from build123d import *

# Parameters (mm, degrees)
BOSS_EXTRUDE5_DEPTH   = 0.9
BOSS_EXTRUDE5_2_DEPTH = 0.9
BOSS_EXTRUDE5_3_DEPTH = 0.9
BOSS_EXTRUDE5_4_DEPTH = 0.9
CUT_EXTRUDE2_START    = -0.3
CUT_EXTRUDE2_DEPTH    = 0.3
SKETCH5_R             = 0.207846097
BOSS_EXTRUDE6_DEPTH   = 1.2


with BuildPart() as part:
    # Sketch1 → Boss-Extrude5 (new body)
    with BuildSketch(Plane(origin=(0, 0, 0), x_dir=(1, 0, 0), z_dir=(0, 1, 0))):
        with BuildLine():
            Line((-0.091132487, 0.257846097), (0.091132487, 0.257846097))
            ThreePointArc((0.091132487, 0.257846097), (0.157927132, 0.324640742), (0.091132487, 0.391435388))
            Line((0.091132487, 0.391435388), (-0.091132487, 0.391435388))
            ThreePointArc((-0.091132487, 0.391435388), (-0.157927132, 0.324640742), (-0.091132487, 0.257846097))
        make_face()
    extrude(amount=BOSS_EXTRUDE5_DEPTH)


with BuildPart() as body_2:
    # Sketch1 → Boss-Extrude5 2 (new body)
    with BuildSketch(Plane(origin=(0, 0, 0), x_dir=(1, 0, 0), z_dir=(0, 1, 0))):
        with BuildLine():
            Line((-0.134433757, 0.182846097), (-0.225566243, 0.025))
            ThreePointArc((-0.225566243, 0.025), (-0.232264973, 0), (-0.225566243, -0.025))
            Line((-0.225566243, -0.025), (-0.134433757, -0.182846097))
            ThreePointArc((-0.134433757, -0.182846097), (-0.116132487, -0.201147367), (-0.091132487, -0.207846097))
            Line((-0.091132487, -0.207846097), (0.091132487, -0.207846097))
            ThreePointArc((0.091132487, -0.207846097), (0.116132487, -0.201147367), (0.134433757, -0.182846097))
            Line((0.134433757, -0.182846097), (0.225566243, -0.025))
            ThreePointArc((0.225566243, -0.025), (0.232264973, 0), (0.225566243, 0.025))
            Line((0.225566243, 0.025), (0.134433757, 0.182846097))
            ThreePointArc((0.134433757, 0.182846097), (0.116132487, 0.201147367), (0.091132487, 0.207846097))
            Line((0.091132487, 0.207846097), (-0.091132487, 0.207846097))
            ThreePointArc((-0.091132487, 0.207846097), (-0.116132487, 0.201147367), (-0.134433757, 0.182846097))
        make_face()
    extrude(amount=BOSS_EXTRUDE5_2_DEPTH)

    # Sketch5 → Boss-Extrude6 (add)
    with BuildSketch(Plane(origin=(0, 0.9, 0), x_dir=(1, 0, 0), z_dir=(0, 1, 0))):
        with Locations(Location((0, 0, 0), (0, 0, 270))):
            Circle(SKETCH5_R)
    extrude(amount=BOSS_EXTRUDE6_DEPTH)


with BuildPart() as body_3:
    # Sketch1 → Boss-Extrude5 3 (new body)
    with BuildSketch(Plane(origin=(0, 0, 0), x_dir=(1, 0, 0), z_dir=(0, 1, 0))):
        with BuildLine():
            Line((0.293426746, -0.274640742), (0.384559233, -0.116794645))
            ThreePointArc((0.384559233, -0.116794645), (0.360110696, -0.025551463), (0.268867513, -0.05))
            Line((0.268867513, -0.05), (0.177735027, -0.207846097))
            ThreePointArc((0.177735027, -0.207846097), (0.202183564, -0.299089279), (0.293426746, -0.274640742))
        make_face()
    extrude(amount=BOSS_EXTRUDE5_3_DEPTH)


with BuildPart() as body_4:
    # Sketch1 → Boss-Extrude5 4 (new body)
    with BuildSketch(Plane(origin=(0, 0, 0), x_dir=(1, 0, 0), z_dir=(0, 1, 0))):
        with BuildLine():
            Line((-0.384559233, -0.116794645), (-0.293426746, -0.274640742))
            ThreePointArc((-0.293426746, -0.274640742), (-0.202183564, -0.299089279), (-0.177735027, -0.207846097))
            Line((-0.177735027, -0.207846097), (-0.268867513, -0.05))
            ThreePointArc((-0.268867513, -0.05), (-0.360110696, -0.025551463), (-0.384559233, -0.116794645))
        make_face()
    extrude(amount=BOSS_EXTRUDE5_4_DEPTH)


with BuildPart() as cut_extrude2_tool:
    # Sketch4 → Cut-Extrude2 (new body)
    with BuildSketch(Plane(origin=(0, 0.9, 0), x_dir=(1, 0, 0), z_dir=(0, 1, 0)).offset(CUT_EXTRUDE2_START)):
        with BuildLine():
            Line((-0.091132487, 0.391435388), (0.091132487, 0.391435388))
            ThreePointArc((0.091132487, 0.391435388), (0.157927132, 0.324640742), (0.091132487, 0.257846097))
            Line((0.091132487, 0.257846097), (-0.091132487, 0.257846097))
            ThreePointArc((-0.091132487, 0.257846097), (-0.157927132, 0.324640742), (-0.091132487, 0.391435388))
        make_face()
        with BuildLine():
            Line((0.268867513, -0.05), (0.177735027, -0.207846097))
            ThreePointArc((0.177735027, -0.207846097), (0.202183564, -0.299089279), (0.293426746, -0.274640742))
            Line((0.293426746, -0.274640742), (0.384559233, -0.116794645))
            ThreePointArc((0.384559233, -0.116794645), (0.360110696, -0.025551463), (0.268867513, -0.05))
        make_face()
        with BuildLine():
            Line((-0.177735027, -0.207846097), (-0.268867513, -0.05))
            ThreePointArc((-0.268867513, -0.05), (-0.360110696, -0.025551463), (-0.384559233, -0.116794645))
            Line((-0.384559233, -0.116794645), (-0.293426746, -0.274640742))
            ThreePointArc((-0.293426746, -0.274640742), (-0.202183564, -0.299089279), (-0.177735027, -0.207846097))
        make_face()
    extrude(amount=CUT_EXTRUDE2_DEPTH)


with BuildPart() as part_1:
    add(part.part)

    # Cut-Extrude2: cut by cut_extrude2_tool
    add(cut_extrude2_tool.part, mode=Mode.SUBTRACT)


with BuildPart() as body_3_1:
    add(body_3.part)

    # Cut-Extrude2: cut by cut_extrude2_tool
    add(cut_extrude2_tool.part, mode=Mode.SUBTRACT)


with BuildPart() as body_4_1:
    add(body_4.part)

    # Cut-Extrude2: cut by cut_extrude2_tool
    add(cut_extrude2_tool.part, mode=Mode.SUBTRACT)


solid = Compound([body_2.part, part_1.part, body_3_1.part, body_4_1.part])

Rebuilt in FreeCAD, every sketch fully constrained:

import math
import FreeCAD as App
import Part
import Sketcher
from FreeCAD import Vector
Q = App.Units.Quantity

doc = App.newDocument("Part")
body = doc.addObject("PartDesign::Body", "Body")

sketch1 = body.newObject("Sketcher::SketchObject", "Sketch")
sketch1.AttachmentSupport = (doc.getObject("XZ_Plane"), [""])
sketch1.MapMode = "FlatFace"
sketch1.addGeometry(Part.LineSegment(Vector(-0.09, -0.26, 0), Vector(0.09, -0.26, 0)), False)
sketch1.addGeometry(Part.ArcOfCircle(Part.Circle(Vector(0.09, -0.32, 0), Vector(0, 0, 1), 0.07), math.radians(-90), math.radians(90)), False)
sketch1.addGeometry(Part.LineSegment(Vector(0.09, -0.39, 0), Vector(-0.09, -0.39, 0)), False)
sketch1.addGeometry(Part.ArcOfCircle(Part.Circle(Vector(-0.09, -0.32, 0), Vector(0, 0, 1), 0.07), math.radians(90), math.radians(270)), False)
sketch1.addConstraint(Sketcher.Constraint("Tangent", 0, 2, 1, 2))
sketch1.addConstraint(Sketcher.Constraint("Tangent", 1, 1, 2, 1))
sketch1.addConstraint(Sketcher.Constraint("Tangent", 2, 2, 3, 2))
sketch1.addConstraint(Sketcher.Constraint("Tangent", 3, 1, 0, 1))
sketch1.addConstraint(Sketcher.Constraint("Horizontal", 0))
sketch1.addConstraint(Sketcher.Constraint("Horizontal", 2))
sketch1.addConstraint(Sketcher.Constraint("Radius", 1, 0.066795))
sketch1.addConstraint(Sketcher.Constraint("DistanceX", 0, 1, 0, 2, 0.182265))
sketch1.addConstraint(Sketcher.Constraint("DistanceY", 1, 3, -1, 1, 0.324641))
sketch1.addConstraint(Sketcher.Constraint("DistanceX", -1, 1, 1, 3, 0.091132))
pad1 = body.newObject("PartDesign::Pad", "Pad")
pad1.Profile = sketch1
pad1.Length = 0.9
pad1.Reversed = True
body2 = doc.addObject("PartDesign::Body", "Body001")

sketch2 = body2.newObject("Sketcher::SketchObject", "Sketch001")
sketch2.AttachmentSupport = (doc.getObject("XZ_Plane001"), [""])
sketch2.MapMode = "FlatFace"
sketch2.addGeometry(Part.LineSegment(Vector(-0.134, -0.183, 0), Vector(-0.226, -0.025, 0)), False)
sketch2.addGeometry(Part.ArcOfCircle(Part.Circle(Vector(-0.182, 0, 0), Vector(0, 0, 1), 0.05), math.radians(150), math.radians(210)), False)
sketch2.addGeometry(Part.LineSegment(Vector(-0.226, 0.025, 0), Vector(-0.134, 0.183, 0)), False)
sketch2.addGeometry(Part.ArcOfCircle(Part.Circle(Vector(-0.091, 0.158, 0), Vector(0, 0, 1), 0.05), math.radians(90), math.radians(150)), False)
sketch2.addGeometry(Part.LineSegment(Vector(-0.091, 0.208, 0), Vector(0.091, 0.208, 0)), False)
sketch2.addGeometry(Part.ArcOfCircle(Part.Circle(Vector(0.091, 0.158, 0), Vector(0, 0, 1), 0.05), math.radians(30), math.radians(90)), False)
sketch2.addGeometry(Part.LineSegment(Vector(0.134, 0.183, 0), Vector(0.226, 0.025, 0)), False)
sketch2.addGeometry(Part.ArcOfCircle(Part.Circle(Vector(0.182, 0, 0), Vector(0, 0, 1), 0.05), math.radians(-30), math.radians(30)), False)
sketch2.addGeometry(Part.LineSegment(Vector(0.226, -0.025, 0), Vector(0.134, -0.183, 0)), False)
sketch2.addGeometry(Part.ArcOfCircle(Part.Circle(Vector(0.091, -0.158, 0), Vector(0, 0, 1), 0.05), math.radians(-90), math.radians(-30)), False)
sketch2.addGeometry(Part.LineSegment(Vector(0.091, -0.208, 0), Vector(-0.091, -0.208, 0)), False)
sketch2.addGeometry(Part.ArcOfCircle(Part.Circle(Vector(-0.091, -0.158, 0), Vector(0, 0, 1), 0.05), math.radians(-150), math.radians(-90)), False)
sketch2.addConstraint(Sketcher.Constraint("Tangent", 0, 2, 1, 2))
sketch2.addConstraint(Sketcher.Constraint("Tangent", 1, 1, 2, 1))
sketch2.addConstraint(Sketcher.Constraint("Tangent", 2, 2, 3, 2))
sketch2.addConstraint(Sketcher.Constraint("Tangent", 3, 1, 4, 1))
sketch2.addConstraint(Sketcher.Constraint("Tangent", 4, 2, 5, 2))
sketch2.addConstraint(Sketcher.Constraint("Tangent", 5, 1, 6, 1))
sketch2.addConstraint(Sketcher.Constraint("Tangent", 6, 2, 7, 2))
sketch2.addConstraint(Sketcher.Constraint("Tangent", 7, 1, 8, 1))
sketch2.addConstraint(Sketcher.Constraint("Tangent", 8, 2, 9, 2))
sketch2.addConstraint(Sketcher.Constraint("Tangent", 9, 1, 10, 1))
sketch2.addConstraint(Sketcher.Constraint("Tangent", 10, 2, 11, 2))
sketch2.addConstraint(Sketcher.Constraint("Tangent", 11, 1, 0, 1))
sketch2.addConstraint(Sketcher.Constraint("Horizontal", 4))
sketch2.addConstraint(Sketcher.Constraint("Horizontal", 10))
sketch2.addConstraint(Sketcher.Constraint("Equal", 1, 3))
sketch2.addConstraint(Sketcher.Constraint("Equal", 3, 5))
sketch2.addConstraint(Sketcher.Constraint("Equal", 5, 7))
sketch2.addConstraint(Sketcher.Constraint("Equal", 7, 9))
sketch2.addConstraint(Sketcher.Constraint("Equal", 9, 11))
sketch2.addConstraint(Sketcher.Constraint("Symmetric", 1, 3, 7, 3, -1, 1))
sketch2.addConstraint(Sketcher.Constraint("Symmetric", 3, 3, 9, 3, -1, 1))
sketch2.addConstraint(Sketcher.Constraint("Symmetric", 2, 2, 5, 1, -2))
sketch2.addConstraint(Sketcher.Constraint("Parallel", 0, 6))
sketch2.addConstraint(Sketcher.Constraint("Angle", 0, Q("120 deg")))
sketch2.addConstraint(Sketcher.Constraint("Radius", 1, 0.05))
sketch2.addConstraint(Sketcher.Constraint("DistanceX", 0, 2, 9, 3, 0.316699))
sketch2.addConstraint(Sketcher.Constraint("DistanceX", 4, 1, 4, 2, 0.182265))
pad2 = body2.newObject("PartDesign::Pad", "Pad001")
pad2.Profile = sketch2
pad2.Length = 0.9
pad2.Reversed = True

sketch3 = body2.newObject("Sketcher::SketchObject", "Sketch002")
sketch3.AttachmentSupport = (doc.getObject("XZ_Plane001"), [""])
sketch3.MapMode = "FlatFace"
sketch3.AttachmentOffset = App.Placement(Vector(0, 0, -0.9), App.Rotation())
sketch3.addGeometry(Part.Circle(Vector(0, 0, 0), Vector(0, 0, 1), 0.21), False)
sketch3.addConstraint(Sketcher.Constraint("Coincident", 0, 3, -1, 1))
sketch3.addConstraint(Sketcher.Constraint("Diameter", 0, 0.415692))
pad3 = body2.newObject("PartDesign::Pad", "Pad002")
pad3.Profile = sketch3
pad3.Length = 1.2
pad3.Reversed = True
body3 = doc.addObject("PartDesign::Body", "Body002")

sketch4 = body3.newObject("Sketcher::SketchObject", "Sketch003")
sketch4.AttachmentSupport = (doc.getObject("XZ_Plane002"), [""])
sketch4.MapMode = "FlatFace"
sketch4.addGeometry(Part.LineSegment(Vector(0.29, 0.27, 0), Vector(0.38, 0.12, 0)), False)
sketch4.addGeometry(Part.ArcOfCircle(Part.Circle(Vector(0.33, 0.08, 0), Vector(0, 0, 1), 0.07), math.radians(-150), math.radians(30)), False)
sketch4.addGeometry(Part.LineSegment(Vector(0.27, 0.05, 0), Vector(0.18, 0.21, 0)), False)
sketch4.addGeometry(Part.ArcOfCircle(Part.Circle(Vector(0.24, 0.24, 0), Vector(0, 0, 1), 0.07), math.radians(30), math.radians(210)), False)
sketch4.addConstraint(Sketcher.Constraint("Tangent", 0, 2, 1, 2))
sketch4.addConstraint(Sketcher.Constraint("Tangent", 1, 1, 2, 1))
sketch4.addConstraint(Sketcher.Constraint("Tangent", 2, 2, 3, 2))
sketch4.addConstraint(Sketcher.Constraint("Tangent", 3, 1, 0, 1))
sketch4.addConstraint(Sketcher.Constraint("Equal", 1, 3))
sketch4.addConstraint(Sketcher.Constraint("Angle", 0, Q("-60 deg")))
sketch4.addConstraint(Sketcher.Constraint("DistanceY", -1, 1, 1, 1, 0.05))
sketch4.addConstraint(Sketcher.Constraint("Radius", 1, 0.066795))
sketch4.addConstraint(Sketcher.Constraint("DistanceX", -1, 1, 3, 3, 0.235581))
sketch4.addConstraint(Sketcher.Constraint("DistanceX", -1, 1, 0, 2, 0.384559))
pad4 = body3.newObject("PartDesign::Pad", "Pad003")
pad4.Profile = sketch4
pad4.Length = 0.9
pad4.Reversed = True
body4 = doc.addObject("PartDesign::Body", "Body003")

sketch5 = body4.newObject("Sketcher::SketchObject", "Sketch004")
sketch5.AttachmentSupport = (doc.getObject("XZ_Plane003"), [""])
sketch5.MapMode = "FlatFace"
sketch5.addGeometry(Part.LineSegment(Vector(-0.38, 0.12, 0), Vector(-0.29, 0.27, 0)), False)
sketch5.addGeometry(Part.ArcOfCircle(Part.Circle(Vector(-0.24, 0.24, 0), Vector(0, 0, 1), 0.07), math.radians(-30), math.radians(150)), False)
sketch5.addGeometry(Part.LineSegment(Vector(-0.18, 0.21, 0), Vector(-0.27, 0.05, 0)), False)
sketch5.addGeometry(Part.ArcOfCircle(Part.Circle(Vector(-0.33, 0.08, 0), Vector(0, 0, 1), 0.07), math.radians(150), math.radians(330)), False)
sketch5.addConstraint(Sketcher.Constraint("Tangent", 0, 2, 1, 2))
sketch5.addConstraint(Sketcher.Constraint("Tangent", 1, 1, 2, 1))
sketch5.addConstraint(Sketcher.Constraint("Tangent", 2, 2, 3, 2))
sketch5.addConstraint(Sketcher.Constraint("Tangent", 3, 1, 0, 1))
sketch5.addConstraint(Sketcher.Constraint("Equal", 1, 3))
sketch5.addConstraint(Sketcher.Constraint("Angle", 0, Q("60 deg")))
sketch5.addConstraint(Sketcher.Constraint("DistanceY", -1, 1, 2, 2, 0.05))
sketch5.addConstraint(Sketcher.Constraint("Radius", 1, 0.066795))
sketch5.addConstraint(Sketcher.Constraint("DistanceX", 1, 3, -1, 1, 0.235581))
sketch5.addConstraint(Sketcher.Constraint("DistanceY", -1, 1, 0, 2, 0.274641))
pad5 = body4.newObject("PartDesign::Pad", "Pad004")
pad5.Profile = sketch5
pad5.Length = 0.9
pad5.Reversed = True
body5 = doc.addObject("PartDesign::Body", "Body004")
body5.AllowCompound = True

sketch6 = body5.newObject("Sketcher::SketchObject", "Sketch005")
sketch6.AttachmentSupport = (doc.getObject("XZ_Plane004"), [""])
sketch6.MapMode = "FlatFace"
sketch6.AttachmentOffset = App.Placement(Vector(0, 0, -0.6), App.Rotation())
sketch6.addGeometry(Part.LineSegment(Vector(0.09, -0.39, 0), Vector(-0.09, -0.39, 0)), False)
sketch6.addGeometry(Part.ArcOfCircle(Part.Circle(Vector(-0.09, -0.32, 0), Vector(0, 0, 1), 0.07), math.radians(90), math.radians(270)), False)
sketch6.addGeometry(Part.LineSegment(Vector(-0.09, -0.26, 0), Vector(0.09, -0.26, 0)), False)
sketch6.addGeometry(Part.ArcOfCircle(Part.Circle(Vector(0.09, -0.32, 0), Vector(0, 0, 1), 0.07), math.radians(-90), math.radians(90)), False)
sketch6.addGeometry(Part.LineSegment(Vector(0.27, 0.05, 0), Vector(0.18, 0.21, 0)), False)
sketch6.addGeometry(Part.ArcOfCircle(Part.Circle(Vector(0.24, 0.24, 0), Vector(0, 0, 1), 0.07), math.radians(30), math.radians(210)), False)
sketch6.addGeometry(Part.LineSegment(Vector(0.29, 0.27, 0), Vector(0.38, 0.12, 0)), False)
sketch6.addGeometry(Part.ArcOfCircle(Part.Circle(Vector(0.33, 0.08, 0), Vector(0, 0, 1), 0.07), math.radians(-150), math.radians(30)), False)
sketch6.addGeometry(Part.LineSegment(Vector(-0.18, 0.21, 0), Vector(-0.27, 0.05, 0)), False)
sketch6.addGeometry(Part.ArcOfCircle(Part.Circle(Vector(-0.33, 0.08, 0), Vector(0, 0, 1), 0.07), math.radians(150), math.radians(330)), False)
sketch6.addGeometry(Part.LineSegment(Vector(-0.38, 0.12, 0), Vector(-0.29, 0.27, 0)), False)
sketch6.addGeometry(Part.ArcOfCircle(Part.Circle(Vector(-0.24, 0.24, 0), Vector(0, 0, 1), 0.07), math.radians(-30), math.radians(150)), False)
sketch6.addConstraint(Sketcher.Constraint("Tangent", 0, 2, 1, 2))
sketch6.addConstraint(Sketcher.Constraint("Tangent", 1, 1, 2, 1))
sketch6.addConstraint(Sketcher.Constraint("Tangent", 2, 2, 3, 2))
sketch6.addConstraint(Sketcher.Constraint("Tangent", 3, 1, 0, 1))
sketch6.addConstraint(Sketcher.Constraint("Tangent", 4, 2, 5, 2))
sketch6.addConstraint(Sketcher.Constraint("Tangent", 5, 1, 6, 1))
sketch6.addConstraint(Sketcher.Constraint("Tangent", 6, 2, 7, 2))
sketch6.addConstraint(Sketcher.Constraint("Tangent", 7, 1, 4, 1))
sketch6.addConstraint(Sketcher.Constraint("Tangent", 8, 2, 9, 2))
sketch6.addConstraint(Sketcher.Constraint("Tangent", 9, 1, 10, 1))
sketch6.addConstraint(Sketcher.Constraint("Tangent", 10, 2, 11, 2))
sketch6.addConstraint(Sketcher.Constraint("Tangent", 11, 1, 8, 1))
sketch6.addConstraint(Sketcher.Constraint("Horizontal", 0))
sketch6.addConstraint(Sketcher.Constraint("Horizontal", 2))
sketch6.addConstraint(Sketcher.Constraint("Equal", 3, 5))
sketch6.addConstraint(Sketcher.Constraint("Equal", 5, 7))
sketch6.addConstraint(Sketcher.Constraint("Equal", 7, 9))
sketch6.addConstraint(Sketcher.Constraint("Equal", 9, 11))
sketch6.addConstraint(Sketcher.Constraint("Symmetric", 7, 3, 9, 3, -2))
sketch6.addConstraint(Sketcher.Constraint("Symmetric", 5, 3, 11, 3, -2))
sketch6.addConstraint(Sketcher.Constraint("Angle", 4, Q("120 deg")))
sketch6.addConstraint(Sketcher.Constraint("DistanceY", -1, 1, 7, 1, 0.05))
sketch6.addConstraint(Sketcher.Constraint("Radius", 1, 0.066795))
sketch6.addConstraint(Sketcher.Constraint("DistanceX", 0, 2, 0, 1, 0.182265))
sketch6.addConstraint(Sketcher.Constraint("DistanceY", 1, 3, -1, 1, 0.324641))
sketch6.addConstraint(Sketcher.Constraint("DistanceX", -1, 1, 5, 3, 0.235581))
sketch6.addConstraint(Sketcher.Constraint("DistanceY", -1, 1, 5, 1, 0.274641))
sketch6.addConstraint(Sketcher.Constraint("DistanceX", 3, 3, 5, 3, 0.144448))
pad6 = body5.newObject("PartDesign::Pad", "Pad005")
pad6.Profile = sketch6
pad6.Length = 0.3
pad6.Reversed = True
doc.recompute()

body6 = doc.addObject("PartDesign::Body", "Body005")
body6.BaseFeature = body5
boolean = body.newObject("PartDesign::Boolean", "Boolean")
boolean.Type = "Cut"
boolean.addObjects([body6])
doc.recompute()

body7 = doc.addObject("PartDesign::Body", "Body006")
body7.BaseFeature = body5
boolean2 = body3.newObject("PartDesign::Boolean", "Boolean001")
boolean2.Type = "Cut"
boolean2.addObjects([body7])
doc.recompute()

boolean3 = body4.newObject("PartDesign::Boolean", "Boolean002")
boolean3.Type = "Cut"
boolean3.addObjects([body5])

doc.recompute()
